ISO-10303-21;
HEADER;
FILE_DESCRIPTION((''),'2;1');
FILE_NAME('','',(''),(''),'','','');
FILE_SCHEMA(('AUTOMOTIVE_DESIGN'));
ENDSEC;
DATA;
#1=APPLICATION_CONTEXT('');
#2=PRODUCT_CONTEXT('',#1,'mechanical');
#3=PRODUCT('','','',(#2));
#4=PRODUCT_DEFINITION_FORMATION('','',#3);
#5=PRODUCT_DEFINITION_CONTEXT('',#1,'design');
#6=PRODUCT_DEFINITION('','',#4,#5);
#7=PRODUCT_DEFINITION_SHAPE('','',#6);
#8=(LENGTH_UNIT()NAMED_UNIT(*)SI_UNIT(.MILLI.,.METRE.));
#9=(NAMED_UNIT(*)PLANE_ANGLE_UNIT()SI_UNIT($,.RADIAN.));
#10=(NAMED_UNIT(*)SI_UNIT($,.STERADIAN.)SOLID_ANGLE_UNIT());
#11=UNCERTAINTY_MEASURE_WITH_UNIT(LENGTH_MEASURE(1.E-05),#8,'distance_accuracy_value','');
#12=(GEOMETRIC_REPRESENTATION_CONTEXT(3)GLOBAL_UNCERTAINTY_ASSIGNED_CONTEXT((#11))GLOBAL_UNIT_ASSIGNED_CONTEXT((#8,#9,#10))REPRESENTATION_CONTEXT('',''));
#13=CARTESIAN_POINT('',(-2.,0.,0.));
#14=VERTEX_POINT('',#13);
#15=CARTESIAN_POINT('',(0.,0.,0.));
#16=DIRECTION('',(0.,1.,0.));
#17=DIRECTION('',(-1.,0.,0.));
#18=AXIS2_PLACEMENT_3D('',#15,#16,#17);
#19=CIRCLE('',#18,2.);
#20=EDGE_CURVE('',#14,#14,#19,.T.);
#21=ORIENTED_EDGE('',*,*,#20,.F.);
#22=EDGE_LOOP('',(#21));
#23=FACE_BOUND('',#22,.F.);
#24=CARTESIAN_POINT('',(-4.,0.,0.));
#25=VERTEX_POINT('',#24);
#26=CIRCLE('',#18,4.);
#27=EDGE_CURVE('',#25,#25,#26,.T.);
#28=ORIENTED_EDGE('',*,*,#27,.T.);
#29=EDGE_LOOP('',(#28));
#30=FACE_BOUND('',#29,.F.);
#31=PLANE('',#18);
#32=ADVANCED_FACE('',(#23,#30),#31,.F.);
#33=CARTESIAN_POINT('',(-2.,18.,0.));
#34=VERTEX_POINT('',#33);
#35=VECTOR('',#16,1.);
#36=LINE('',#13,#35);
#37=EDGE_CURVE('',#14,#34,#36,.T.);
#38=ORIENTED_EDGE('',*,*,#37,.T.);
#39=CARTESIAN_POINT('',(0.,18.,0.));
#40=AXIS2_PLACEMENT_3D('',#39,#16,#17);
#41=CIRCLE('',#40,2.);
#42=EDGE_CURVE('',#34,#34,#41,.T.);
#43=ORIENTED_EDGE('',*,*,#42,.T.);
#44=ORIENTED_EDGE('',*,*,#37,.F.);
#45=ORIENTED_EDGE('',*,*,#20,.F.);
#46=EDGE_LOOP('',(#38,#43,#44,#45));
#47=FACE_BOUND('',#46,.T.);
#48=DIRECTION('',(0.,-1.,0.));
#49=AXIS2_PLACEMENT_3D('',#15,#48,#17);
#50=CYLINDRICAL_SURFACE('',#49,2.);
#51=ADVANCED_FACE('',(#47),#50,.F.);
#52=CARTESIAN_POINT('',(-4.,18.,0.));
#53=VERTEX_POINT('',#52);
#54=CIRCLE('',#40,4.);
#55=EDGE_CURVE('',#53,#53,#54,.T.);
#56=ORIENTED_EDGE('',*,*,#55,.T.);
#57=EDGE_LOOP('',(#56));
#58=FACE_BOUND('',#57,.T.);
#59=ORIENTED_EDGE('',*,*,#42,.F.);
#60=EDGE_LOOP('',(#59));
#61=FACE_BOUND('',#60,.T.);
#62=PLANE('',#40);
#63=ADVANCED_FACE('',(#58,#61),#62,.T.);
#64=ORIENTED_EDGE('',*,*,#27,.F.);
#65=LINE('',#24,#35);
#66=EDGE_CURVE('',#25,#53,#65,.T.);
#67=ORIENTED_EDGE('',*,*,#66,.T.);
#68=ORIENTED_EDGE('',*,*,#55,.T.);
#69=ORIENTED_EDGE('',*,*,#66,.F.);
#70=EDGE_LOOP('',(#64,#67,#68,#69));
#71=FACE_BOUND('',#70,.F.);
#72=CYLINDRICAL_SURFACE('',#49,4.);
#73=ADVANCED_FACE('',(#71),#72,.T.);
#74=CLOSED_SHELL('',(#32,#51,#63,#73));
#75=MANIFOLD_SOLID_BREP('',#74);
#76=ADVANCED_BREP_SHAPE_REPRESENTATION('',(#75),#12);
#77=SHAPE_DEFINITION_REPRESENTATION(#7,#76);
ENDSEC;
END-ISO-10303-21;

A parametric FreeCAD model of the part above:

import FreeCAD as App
import Part
import Sketcher
Q = App.Units.Quantity

doc = App.newDocument("Part")
params = doc.addObject("Spreadsheet::Sheet", "Params")
for row, (alias, value) in enumerate([
    ("sketch1_diameter", "8 mm"),
    ("sketch1_diameter2", "4 mm"),
    ("pad1_length", "18 mm"),
], start=1):
    params.set(f"A{row}", alias)
    params.set(f"B{row}", "=" + value)
    params.setAlias(f"B{row}", alias)

body = doc.addObject("PartDesign::Body", "Body")

sketch1 = doc.addObject("Sketcher::SketchObject", "Sketch")
body.addObject(sketch1)
sketch1.AttachmentSupport = (doc.XZ_Plane, [""])
sketch1.MapMode = "FlatFace"
sketch1.addGeometry([
    Part.Circle(App.Vector(0, 0, 0), App.Vector(0, 0, 1), 4),
    Part.Circle(App.Vector(0, 0, 0), App.Vector(0, 0, 1), 2),
], False)
sketch1.addConstraint([
    Sketcher.Constraint("Coincident", 0, 3, -1, 1),
    Sketcher.Constraint("Coincident", 1, 3, -1, 1),
    Sketcher.Constraint("Diameter", 0, Q("8 mm")),
    Sketcher.Constraint("Diameter", 1, Q("4 mm")),
])
sketch1.setExpression("Constraints[2]", "Params.sketch1_diameter")
sketch1.setExpression("Constraints[3]", "Params.sketch1_diameter2")
pad1 = doc.addObject("PartDesign::Pad", "Pad")
body.addObject(pad1)
pad1.Profile = sketch1
pad1.setExpression("Length", "Params.pad1_length")
pad1.Reversed = True

doc.recompute()
